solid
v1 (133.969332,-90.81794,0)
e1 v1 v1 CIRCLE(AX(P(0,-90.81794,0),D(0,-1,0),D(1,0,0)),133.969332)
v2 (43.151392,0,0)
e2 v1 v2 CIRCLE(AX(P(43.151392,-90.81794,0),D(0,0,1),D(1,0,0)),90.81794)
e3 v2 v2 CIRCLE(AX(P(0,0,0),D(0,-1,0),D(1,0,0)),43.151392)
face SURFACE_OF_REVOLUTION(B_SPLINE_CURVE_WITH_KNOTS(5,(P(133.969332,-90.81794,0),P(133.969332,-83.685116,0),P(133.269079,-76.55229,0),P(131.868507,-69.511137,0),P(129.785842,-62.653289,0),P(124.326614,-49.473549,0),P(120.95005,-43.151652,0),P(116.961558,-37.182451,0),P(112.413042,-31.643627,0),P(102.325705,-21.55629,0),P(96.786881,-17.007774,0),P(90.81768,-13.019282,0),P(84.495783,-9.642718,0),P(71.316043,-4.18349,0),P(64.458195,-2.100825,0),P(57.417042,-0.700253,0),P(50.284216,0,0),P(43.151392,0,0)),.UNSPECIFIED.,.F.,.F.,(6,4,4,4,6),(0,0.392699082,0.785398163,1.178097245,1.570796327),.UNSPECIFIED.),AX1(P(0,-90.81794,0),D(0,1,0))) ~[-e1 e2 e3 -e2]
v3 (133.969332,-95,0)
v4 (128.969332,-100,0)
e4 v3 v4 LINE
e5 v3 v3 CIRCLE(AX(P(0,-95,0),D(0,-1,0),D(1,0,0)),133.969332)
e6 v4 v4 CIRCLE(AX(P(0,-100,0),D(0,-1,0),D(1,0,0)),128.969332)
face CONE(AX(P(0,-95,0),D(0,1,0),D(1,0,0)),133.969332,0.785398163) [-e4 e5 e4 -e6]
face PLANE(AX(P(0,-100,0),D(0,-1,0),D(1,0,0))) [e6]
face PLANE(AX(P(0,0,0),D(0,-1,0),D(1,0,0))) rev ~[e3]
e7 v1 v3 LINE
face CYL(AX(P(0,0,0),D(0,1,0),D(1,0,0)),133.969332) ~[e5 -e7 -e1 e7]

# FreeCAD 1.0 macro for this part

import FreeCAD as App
import Part
import Sketcher
from FreeCAD import Vector


def edges_at(feature, points):
    """Names of the edges that pass closest to the given points."""
    edges = feature.Shape.Edges
    near = lambda p: min(range(len(edges)), key=lambda i: edges[i].distToShape(Part.Vertex(*p))[0])
    return sorted({f"Edge{near(p) + 1}" for p in points})

doc = App.newDocument("Part")
body = doc.addObject("PartDesign::Body", "Body")

# Sketch on XZ plane
sketch1 = body.newObject("Sketcher::SketchObject", "Sketch")
sketch1.AttachmentSupport = (doc.getObject("XZ_Plane"), [""])
sketch1.MapMode = "FlatFace"
sketch1.addGeometry(Part.Circle(Vector(0, 0, 0), Vector(0, 0, 1), 134), False)
sketch1.addConstraint(Sketcher.Constraint("Coincident", 0, 3, -1, 1))
sketch1.addConstraint(Sketcher.Constraint("Diameter", 0, 267.938664))
pad1 = body.newObject("PartDesign::Pad", "Pad")
pad1.Profile = sketch1
pad1.Length = 100
doc.recompute()

chamfer = body.newObject("PartDesign::Chamfer", "Chamfer")
chamfer.Base = (pad1, edges_at(pad1, [(-133.969, -100, 0)]))
chamfer.Size = 5
doc.recompute()

fillet = body.newObject("PartDesign::Fillet", "Fillet")
fillet.Base = (chamfer, edges_at(chamfer, [(-133.969, 0, 0)]))
fillet.Radius = 90.81794

doc.recompute()
